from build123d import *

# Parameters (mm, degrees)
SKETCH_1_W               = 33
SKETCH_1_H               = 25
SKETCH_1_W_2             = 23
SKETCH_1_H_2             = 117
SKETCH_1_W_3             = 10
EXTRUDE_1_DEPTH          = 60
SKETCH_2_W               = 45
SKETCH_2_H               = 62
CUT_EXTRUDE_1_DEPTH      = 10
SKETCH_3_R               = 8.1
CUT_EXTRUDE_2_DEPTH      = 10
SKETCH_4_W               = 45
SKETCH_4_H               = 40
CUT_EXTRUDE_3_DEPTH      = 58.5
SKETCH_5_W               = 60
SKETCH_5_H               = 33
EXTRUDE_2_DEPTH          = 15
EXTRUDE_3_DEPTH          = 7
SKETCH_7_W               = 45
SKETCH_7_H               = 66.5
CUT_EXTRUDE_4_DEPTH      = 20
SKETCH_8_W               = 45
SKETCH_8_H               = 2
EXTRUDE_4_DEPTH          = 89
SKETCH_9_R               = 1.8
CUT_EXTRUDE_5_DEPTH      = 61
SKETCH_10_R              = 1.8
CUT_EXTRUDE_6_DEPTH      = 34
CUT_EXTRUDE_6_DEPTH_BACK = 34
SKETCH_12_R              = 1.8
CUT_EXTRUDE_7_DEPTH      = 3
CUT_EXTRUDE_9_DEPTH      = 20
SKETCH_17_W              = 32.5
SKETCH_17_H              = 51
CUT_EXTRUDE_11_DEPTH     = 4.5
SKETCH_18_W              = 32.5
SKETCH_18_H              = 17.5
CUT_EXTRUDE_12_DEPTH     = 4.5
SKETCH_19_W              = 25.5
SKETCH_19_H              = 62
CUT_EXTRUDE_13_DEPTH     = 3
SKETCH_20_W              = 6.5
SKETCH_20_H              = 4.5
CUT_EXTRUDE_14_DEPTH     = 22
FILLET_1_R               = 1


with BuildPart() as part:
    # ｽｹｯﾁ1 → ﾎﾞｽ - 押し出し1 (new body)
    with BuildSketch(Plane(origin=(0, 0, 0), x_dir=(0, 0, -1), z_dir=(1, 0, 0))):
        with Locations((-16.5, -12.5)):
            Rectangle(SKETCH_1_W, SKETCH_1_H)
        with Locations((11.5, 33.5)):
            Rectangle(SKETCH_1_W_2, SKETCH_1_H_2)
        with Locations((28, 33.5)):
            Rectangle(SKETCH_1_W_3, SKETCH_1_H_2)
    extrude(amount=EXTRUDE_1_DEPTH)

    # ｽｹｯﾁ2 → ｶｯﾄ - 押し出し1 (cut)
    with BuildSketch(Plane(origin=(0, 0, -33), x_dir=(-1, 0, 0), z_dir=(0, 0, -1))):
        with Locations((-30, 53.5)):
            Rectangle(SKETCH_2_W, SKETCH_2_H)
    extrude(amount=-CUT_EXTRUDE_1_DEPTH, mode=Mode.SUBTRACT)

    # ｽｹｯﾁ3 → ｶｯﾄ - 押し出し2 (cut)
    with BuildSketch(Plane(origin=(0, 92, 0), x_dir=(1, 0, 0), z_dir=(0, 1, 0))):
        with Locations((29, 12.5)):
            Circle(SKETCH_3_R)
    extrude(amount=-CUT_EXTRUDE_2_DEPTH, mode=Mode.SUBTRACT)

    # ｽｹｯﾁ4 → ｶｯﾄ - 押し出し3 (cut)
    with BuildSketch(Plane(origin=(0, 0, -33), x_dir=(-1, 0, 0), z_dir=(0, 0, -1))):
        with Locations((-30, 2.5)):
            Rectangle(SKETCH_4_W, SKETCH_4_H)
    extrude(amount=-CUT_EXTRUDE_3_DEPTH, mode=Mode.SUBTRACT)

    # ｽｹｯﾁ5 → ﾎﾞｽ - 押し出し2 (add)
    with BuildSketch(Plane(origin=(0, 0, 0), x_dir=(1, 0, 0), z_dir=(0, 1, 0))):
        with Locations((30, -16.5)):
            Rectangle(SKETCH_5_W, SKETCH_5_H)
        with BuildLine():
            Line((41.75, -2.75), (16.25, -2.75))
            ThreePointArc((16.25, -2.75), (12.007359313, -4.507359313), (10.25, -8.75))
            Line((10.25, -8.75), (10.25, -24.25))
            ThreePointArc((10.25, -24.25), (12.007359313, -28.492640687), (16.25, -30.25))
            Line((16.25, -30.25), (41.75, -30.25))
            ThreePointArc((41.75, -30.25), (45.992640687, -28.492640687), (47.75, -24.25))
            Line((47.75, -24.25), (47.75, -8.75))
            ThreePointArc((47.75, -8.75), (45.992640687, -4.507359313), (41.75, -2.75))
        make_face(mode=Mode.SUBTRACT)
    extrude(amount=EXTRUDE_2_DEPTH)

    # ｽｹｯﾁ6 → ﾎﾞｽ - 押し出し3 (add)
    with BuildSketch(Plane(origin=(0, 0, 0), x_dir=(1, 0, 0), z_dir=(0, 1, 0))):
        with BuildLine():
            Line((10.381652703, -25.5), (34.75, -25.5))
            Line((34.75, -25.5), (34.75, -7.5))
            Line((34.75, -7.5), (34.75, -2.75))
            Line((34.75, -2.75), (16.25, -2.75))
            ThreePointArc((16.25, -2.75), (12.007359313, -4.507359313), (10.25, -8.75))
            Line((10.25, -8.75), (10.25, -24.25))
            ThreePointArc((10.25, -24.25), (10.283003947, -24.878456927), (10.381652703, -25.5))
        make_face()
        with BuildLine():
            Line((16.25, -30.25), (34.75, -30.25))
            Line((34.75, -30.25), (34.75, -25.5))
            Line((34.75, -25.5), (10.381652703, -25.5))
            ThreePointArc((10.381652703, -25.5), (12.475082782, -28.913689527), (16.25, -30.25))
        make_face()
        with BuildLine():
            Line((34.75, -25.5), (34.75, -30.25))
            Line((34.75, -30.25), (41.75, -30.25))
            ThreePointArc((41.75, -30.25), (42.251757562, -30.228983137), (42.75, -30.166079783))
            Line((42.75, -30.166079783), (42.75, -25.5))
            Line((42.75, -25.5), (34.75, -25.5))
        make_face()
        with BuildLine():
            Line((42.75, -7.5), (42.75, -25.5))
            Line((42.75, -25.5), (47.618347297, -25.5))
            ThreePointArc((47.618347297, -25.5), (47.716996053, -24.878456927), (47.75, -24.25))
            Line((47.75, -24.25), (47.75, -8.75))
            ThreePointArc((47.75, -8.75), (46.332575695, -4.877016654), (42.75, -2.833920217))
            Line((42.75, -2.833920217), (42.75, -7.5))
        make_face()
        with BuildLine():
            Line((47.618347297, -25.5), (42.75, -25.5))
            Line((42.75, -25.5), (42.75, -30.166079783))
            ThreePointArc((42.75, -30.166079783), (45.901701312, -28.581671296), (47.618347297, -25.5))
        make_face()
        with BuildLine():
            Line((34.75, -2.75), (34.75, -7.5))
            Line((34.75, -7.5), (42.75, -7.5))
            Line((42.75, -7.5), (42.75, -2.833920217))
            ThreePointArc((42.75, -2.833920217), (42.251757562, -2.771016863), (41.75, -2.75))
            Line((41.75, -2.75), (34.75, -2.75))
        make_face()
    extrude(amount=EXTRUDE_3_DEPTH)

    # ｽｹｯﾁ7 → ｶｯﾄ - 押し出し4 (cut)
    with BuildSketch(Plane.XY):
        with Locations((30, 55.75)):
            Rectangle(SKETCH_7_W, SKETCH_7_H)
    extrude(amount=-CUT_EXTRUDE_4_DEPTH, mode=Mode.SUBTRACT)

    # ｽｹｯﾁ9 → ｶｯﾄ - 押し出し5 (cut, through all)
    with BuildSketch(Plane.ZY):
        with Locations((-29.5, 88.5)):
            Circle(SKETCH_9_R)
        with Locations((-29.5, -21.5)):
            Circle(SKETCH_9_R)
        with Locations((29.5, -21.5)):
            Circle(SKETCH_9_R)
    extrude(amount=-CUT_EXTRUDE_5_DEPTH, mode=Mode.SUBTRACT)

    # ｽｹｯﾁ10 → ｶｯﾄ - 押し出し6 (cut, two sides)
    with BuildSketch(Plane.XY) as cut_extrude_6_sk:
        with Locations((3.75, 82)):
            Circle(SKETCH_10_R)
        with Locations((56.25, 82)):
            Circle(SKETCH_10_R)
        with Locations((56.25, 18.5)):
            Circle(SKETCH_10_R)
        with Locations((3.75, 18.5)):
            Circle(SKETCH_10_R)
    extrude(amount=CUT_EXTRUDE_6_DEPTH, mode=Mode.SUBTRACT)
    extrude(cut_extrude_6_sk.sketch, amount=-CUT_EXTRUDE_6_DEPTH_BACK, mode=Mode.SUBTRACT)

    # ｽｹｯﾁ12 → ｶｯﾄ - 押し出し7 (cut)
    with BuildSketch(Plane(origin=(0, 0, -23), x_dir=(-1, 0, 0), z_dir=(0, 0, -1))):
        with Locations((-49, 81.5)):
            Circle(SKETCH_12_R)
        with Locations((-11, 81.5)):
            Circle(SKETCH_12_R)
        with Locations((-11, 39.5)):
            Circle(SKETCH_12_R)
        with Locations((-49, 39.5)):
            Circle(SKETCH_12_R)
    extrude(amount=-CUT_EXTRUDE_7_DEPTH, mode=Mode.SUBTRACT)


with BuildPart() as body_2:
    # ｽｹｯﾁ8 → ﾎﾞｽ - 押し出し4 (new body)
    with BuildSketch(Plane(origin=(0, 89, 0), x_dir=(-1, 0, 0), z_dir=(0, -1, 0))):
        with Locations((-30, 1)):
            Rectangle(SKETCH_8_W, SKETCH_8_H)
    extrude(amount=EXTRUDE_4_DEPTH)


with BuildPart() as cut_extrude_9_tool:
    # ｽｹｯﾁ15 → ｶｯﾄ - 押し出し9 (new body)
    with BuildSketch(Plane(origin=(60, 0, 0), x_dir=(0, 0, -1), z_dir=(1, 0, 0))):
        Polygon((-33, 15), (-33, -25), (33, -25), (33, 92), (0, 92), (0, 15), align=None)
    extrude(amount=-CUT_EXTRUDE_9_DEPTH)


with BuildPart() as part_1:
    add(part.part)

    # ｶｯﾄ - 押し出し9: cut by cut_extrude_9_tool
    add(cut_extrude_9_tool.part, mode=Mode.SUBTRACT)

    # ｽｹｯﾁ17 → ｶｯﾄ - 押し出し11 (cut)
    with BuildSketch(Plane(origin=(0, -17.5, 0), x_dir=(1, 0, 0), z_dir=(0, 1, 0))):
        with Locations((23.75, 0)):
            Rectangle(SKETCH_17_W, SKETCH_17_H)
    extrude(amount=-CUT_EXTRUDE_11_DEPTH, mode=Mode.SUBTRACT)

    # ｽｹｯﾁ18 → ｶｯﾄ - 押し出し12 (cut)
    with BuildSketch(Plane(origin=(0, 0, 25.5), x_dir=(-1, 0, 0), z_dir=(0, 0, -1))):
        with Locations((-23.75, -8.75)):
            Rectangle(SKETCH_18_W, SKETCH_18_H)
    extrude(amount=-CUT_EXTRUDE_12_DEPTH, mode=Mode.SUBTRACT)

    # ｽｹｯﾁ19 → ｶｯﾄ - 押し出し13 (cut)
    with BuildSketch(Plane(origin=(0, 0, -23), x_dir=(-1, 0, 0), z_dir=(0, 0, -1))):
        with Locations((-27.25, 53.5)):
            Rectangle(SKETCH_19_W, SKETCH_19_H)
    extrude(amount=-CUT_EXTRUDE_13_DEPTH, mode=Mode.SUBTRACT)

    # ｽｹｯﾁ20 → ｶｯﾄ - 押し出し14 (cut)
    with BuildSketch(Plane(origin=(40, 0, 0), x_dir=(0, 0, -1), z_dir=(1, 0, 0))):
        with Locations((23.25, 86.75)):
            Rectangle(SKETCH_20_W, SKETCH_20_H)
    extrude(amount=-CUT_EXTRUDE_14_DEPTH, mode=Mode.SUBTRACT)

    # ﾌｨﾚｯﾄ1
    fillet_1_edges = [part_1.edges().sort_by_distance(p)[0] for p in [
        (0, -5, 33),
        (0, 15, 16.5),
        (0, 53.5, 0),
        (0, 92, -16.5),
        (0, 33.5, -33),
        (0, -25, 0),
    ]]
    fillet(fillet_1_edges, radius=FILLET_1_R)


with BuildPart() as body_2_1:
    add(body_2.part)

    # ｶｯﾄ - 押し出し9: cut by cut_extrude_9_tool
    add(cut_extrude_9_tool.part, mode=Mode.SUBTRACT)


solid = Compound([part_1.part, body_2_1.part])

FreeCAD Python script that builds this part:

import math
import FreeCAD as App
import Part
import Sketcher


def edges_at(feature, points):
    """Names of the edges that pass closest to the given points."""
    edges = feature.Shape.Edges
    near = lambda p: min(range(len(edges)), key=lambda i: edges[i].distToShape(Part.Vertex(*p))[0])
    return sorted({f"Edge{near(p) + 1}" for p in points})


def add_polygon(sketch, points):
    """Adds a closed chain of lines whose ends are joined by coincident constraints."""
    first, n = sketch.GeometryCount, len(points)
    for a, b in zip(points, points[1:] + points[:1]):
        sketch.addGeometry(Part.LineSegment(App.Vector(*a, 0), App.Vector(*b, 0)), False)
    for i in range(n):
        sketch.addConstraint(Sketcher.Constraint("Coincident", first + i, 2, first + (i + 1) % n, 1))

doc = App.newDocument("Part")
body = doc.addObject("PartDesign::Body", "Body")

# Sketch on YZ plane
sketch1 = body.newObject("Sketcher::SketchObject", "Sketch")
sketch1.AttachmentSupport = (doc.getObject("YZ_Plane"), [""])
sketch1.MapMode = "FlatFace"
add_polygon(sketch1, [(0, 33), (-25, 33), (-25, -33), (92, -33), (92, 0), (0, 0)])  # lines 0-5
sketch1.addConstraint([
    Sketcher.Constraint("Horizontal", 0),
    Sketcher.Constraint("Vertical", 1),
    Sketcher.Constraint("Horizontal", 2),
    Sketcher.Constraint("Vertical", 3),
    Sketcher.Constraint("Horizontal", 4),
    Sketcher.Constraint("Vertical", 5),
    Sketcher.Constraint("Coincident", 4, 2, -1, 1),
    Sketcher.Constraint("Equal", 3, 5),
    Sketcher.Constraint("DistanceX", 0, 2, 0, 1, 25.0),
    Sketcher.Constraint("DistanceX", 2, 1, 2, 2, 117.0),
    Sketcher.Constraint("DistanceY", 1, 2, 1, 1, 66.0),
])
pad1 = body.newObject("PartDesign::Pad", "Pad")
pad1.Profile = sketch1
pad1.Length = 60

# Sketch on XY plane
sketch2 = body.newObject("Sketcher::SketchObject", "Sketch001")
sketch2.AttachmentSupport = (doc.getObject("XY_Plane"), [""])
sketch2.MapMode = "FlatFace"
sketch2.AttachmentOffset = App.Placement(App.Vector(0, 0, -33), App.Rotation())
add_polygon(sketch2, [(52.5, 84.5), (52.5, 22.5), (7.5, 22.5), (7.5, 84.5)])  # lines 0-3
sketch2.addConstraint([
    Sketcher.Constraint("Vertical", 0),
    Sketcher.Constraint("Horizontal", 1),
    Sketcher.Constraint("Vertical", 2),
    Sketcher.Constraint("Horizontal", 3),
    Sketcher.Constraint("DistanceX", 1, 2, 1, 1, 45.0),
    Sketcher.Constraint("DistanceY", 0, 2, 0, 1, 62.0),
    Sketcher.Constraint("DistanceX", -1, 1, 0, 2, 52.5),
    Sketcher.Constraint("DistanceY", -1, 1, 0, 2, 22.5),
])
pocket1 = body.newObject("PartDesign::Pocket", "Pocket")
pocket1.Profile = sketch2
pocket1.Length = 10
pocket1.Reversed = True

# Sketch on XZ plane
sketch3 = body.newObject("Sketcher::SketchObject", "Sketch002")
sketch3.AttachmentSupport = (doc.getObject("XZ_Plane"), [""])
sketch3.MapMode = "FlatFace"
sketch3.AttachmentOffset = App.Placement(App.Vector(0, 0, -92), App.Rotation())
sketch3.addGeometry(Part.Circle(App.Vector(29, -12.5, 0), App.Vector(0, 0, 1), 8.1), False)
sketch3.addConstraint([
    Sketcher.Constraint("Diameter", 0, 16.2),
    Sketcher.Constraint("DistanceX", -1, 1, 0, 3, 29.0),
    Sketcher.Constraint("DistanceY", 0, 3, -1, 1, 12.5),
])
pocket2 = body.newObject("PartDesign::Pocket", "Pocket001")
pocket2.Profile = sketch3
pocket2.Length = 10
pocket2.Reversed = True

# Sketch on XY plane
sketch4 = body.newObject("Sketcher::SketchObject", "Sketch003")
sketch4.AttachmentSupport = (doc.getObject("XY_Plane"), [""])
sketch4.MapMode = "FlatFace"
sketch4.AttachmentOffset = App.Placement(App.Vector(0, 0, -33), App.Rotation())
add_polygon(sketch4, [(52.5, 22.5), (52.5, -17.5), (7.5, -17.5), (7.5, 22.5)])  # lines 0-3
sketch4.addConstraint([
    Sketcher.Constraint("Vertical", 0),
    Sketcher.Constraint("Horizontal", 1),
    Sketcher.Constraint("Vertical", 2),
    Sketcher.Constraint("Horizontal", 3),
    Sketcher.Constraint("DistanceX", 1, 2, 1, 1, 45.0),
    Sketcher.Constraint("DistanceY", 0, 2, 0, 1, 40.0),
    Sketcher.Constraint("DistanceX", -1, 1, 0, 2, 52.5),
    Sketcher.Constraint("DistanceY", 0, 2, -1, 1, 17.5),
])
pocket3 = body.newObject("PartDesign::Pocket", "Pocket002")
pocket3.Profile = sketch4
pocket3.Length = 58.5
pocket3.Reversed = True

# Sketch on XZ plane
sketch5 = body.newObject("Sketcher::SketchObject", "Sketch004")
sketch5.AttachmentSupport = (doc.getObject("XZ_Plane"), [""])
sketch5.MapMode = "FlatFace"
add_polygon(sketch5, [(0, 0), (0, 33), (60, 33), (60, 0)])  # lines 0-3
sketch5.addGeometry(Part.LineSegment(App.Vector(16.25, 2.75, 0), App.Vector(41.75, 2.75, 0)), False)  # 4
sketch5.addGeometry(Part.ArcOfCircle(Part.Circle(App.Vector(41.75, 8.75, 0), App.Vector(0, 0, 1), 6), math.radians(-90), math.radians(0)), False)  # 5
sketch5.addGeometry(Part.LineSegment(App.Vector(47.75, 8.75, 0), App.Vector(47.75, 24.25, 0)), False)  # 6
sketch5.addGeometry(Part.ArcOfCircle(Part.Circle(App.Vector(41.75, 24.25, 0), App.Vector(0, 0, 1), 6), math.radians(0), math.radians(90)), False)  # 7
sketch5.addGeometry(Part.LineSegment(App.Vector(41.75, 30.25, 0), App.Vector(16.25, 30.25, 0)), False)  # 8
sketch5.addGeometry(Part.ArcOfCircle(Part.Circle(App.Vector(16.25, 24.25, 0), App.Vector(0, 0, 1), 6), math.radians(90), math.radians(180)), False)  # 9
sketch5.addGeometry(Part.LineSegment(App.Vector(10.25, 24.25, 0), App.Vector(10.25, 8.75, 0)), False)  # 10
sketch5.addGeometry(Part.ArcOfCircle(Part.Circle(App.Vector(16.25, 8.75, 0), App.Vector(0, 0, 1), 6), math.radians(180), math.radians(270)), False)  # 11
sketch5.addConstraint([
    Sketcher.Constraint("Tangent", 4, 2, 5, 1),
    Sketcher.Constraint("Tangent", 5, 2, 6, 1),
    Sketcher.Constraint("Tangent", 6, 2, 7, 1),
    Sketcher.Constraint("Tangent", 7, 2, 8, 1),
    Sketcher.Constraint("Tangent", 8, 2, 9, 1),
    Sketcher.Constraint("Tangent", 9, 2, 10, 1),
    Sketcher.Constraint("Tangent", 10, 2, 11, 1),
    Sketcher.Constraint("Tangent", 11, 2, 4, 1),
    Sketcher.Constraint("Vertical", 0),
    Sketcher.Constraint("Horizontal", 1),
    Sketcher.Constraint("Vertical", 2),
    Sketcher.Constraint("Horizontal", 3),
    Sketcher.Constraint("Horizontal", 4),
    Sketcher.Constraint("Vertical", 6),
    Sketcher.Constraint("Horizontal", 8),
    Sketcher.Constraint("Vertical", 10),
    Sketcher.Constraint("Coincident", 3, 2, -1, 1),
    Sketcher.Constraint("Equal", 5, 7),
    Sketcher.Constraint("Equal", 7, 9),
    Sketcher.Constraint("Equal", 9, 11),
    Sketcher.Constraint("Radius", 5, 6.0),
    Sketcher.Constraint("DistanceX", 1, 1, 1, 2, 60.0),
    Sketcher.Constraint("DistanceY", 0, 1, 0, 2, 33.0),
    Sketcher.Constraint("DistanceX", 4, 1, 4, 2, 25.5),
    Sketcher.Constraint("DistanceY", 6, 1, 6, 2, 15.5),
    Sketcher.Constraint("DistanceX", -1, 1, 5, 3, 41.75),
    Sketcher.Constraint("DistanceY", -1, 1, 5, 3, 8.75),
])
pad2 = body.newObject("PartDesign::Pad", "Pad001")
pad2.Profile = sketch5
pad2.Length = 15
pad2.Reversed = True

# Sketch on XZ plane
sketch6 = body.newObject("Sketcher::SketchObject", "Sketch005")
sketch6.AttachmentSupport = (doc.getObject("XZ_Plane"), [""])
sketch6.MapMode = "FlatFace"
sketch6.addGeometry(Part.ArcOfCircle(Part.Circle(App.Vector(16.25, 8.75, 0), App.Vector(0, 0, 1), 6), math.radians(180), math.radians(270)), False)  # 0
sketch6.addGeometry(Part.LineSegment(App.Vector(10.25, 8.75, 0), App.Vector(10.25, 24.25, 0)), False)  # 1
sketch6.addGeometry(Part.ArcOfCircle(Part.Circle(App.Vector(16.25, 24.25, 0), App.Vector(0, 0, 1), 6), math.radians(167.975301), math.radians(180)), False)  # 2
sketch6.addGeometry(Part.ArcOfCircle(Part.Circle(App.Vector(16.25, 24.25, 0), App.Vector(0, 0, 1), 6), math.radians(90), math.radians(167.975301)), False)  # 3
sketch6.addGeometry(Part.LineSegment(App.Vector(16.25, 30.25, 0), App.Vector(41.75, 30.25, 0)), False)  # 4
sketch6.addGeometry(Part.ArcOfCircle(Part.Circle(App.Vector(41.75, 24.25, 0), App.Vector(0, 0, 1), 6), math.radians(80.405932), math.radians(90)), False)  # 5
sketch6.addGeometry(Part.ArcOfCircle(Part.Circle(App.Vector(41.75, 24.25, 0), App.Vector(0, 0, 1), 6), math.radians(12.024699), math.radians(80.405932)), False)  # 6
sketch6.addGeometry(Part.ArcOfCircle(Part.Circle(App.Vector(41.75, 24.25, 0), App.Vector(0, 0, 1), 6), math.radians(0), math.radians(12.024699)), False)  # 7
sketch6.addGeometry(Part.LineSegment(App.Vector(47.75, 24.25, 0), App.Vector(47.75, 8.75, 0)), False)  # 8
sketch6.addGeometry(Part.ArcOfCircle(Part.Circle(App.Vector(41.75, 8.75, 0), App.Vector(0, 0, 1), 6), math.radians(-80.405932), math.radians(0)), False)  # 9
sketch6.addGeometry(Part.ArcOfCircle(Part.Circle(App.Vector(41.75, 8.75, 0), App.Vector(0, 0, 1), 6), math.radians(-90), math.radians(-80.405932)), False)  # 10
sketch6.addGeometry(Part.LineSegment(App.Vector(41.75, 2.75, 0), App.Vector(16.25, 2.75, 0)), False)  # 11
add_polygon(sketch6, [(42.75, 7.5), (42.75, 25.5), (34.75, 25.5), (34.75, 7.5)])  # lines 12-15
sketch6.addConstraint([
    Sketcher.Constraint("Tangent", 0, 1, 1, 1),
    Sketcher.Constraint("Tangent", 1, 2, 2, 2),
    Sketcher.Constraint("Tangent", 2, 1, 3, 2),
    Sketcher.Constraint("Tangent", 3, 1, 4, 1),
    Sketcher.Constraint("Tangent", 4, 2, 5, 2),
    Sketcher.Constraint("Tangent", 5, 1, 6, 2),
    Sketcher.Constraint("Tangent", 6, 1, 7, 2),
    Sketcher.Constraint("Tangent", 7, 1, 8, 1),
    Sketcher.Constraint("Tangent", 8, 2, 9, 2),
    Sketcher.Constraint("Tangent", 9, 1, 10, 2),
    Sketcher.Constraint("Tangent", 10, 1, 11, 1),
    Sketcher.Constraint("Tangent", 11, 2, 0, 2),
    Sketcher.Constraint("Vertical", 1),
    Sketcher.Constraint("Horizontal", 4),
    Sketcher.Constraint("Vertical", 8),
    Sketcher.Constraint("Horizontal", 11),
    Sketcher.Constraint("Vertical", 12),
    Sketcher.Constraint("Horizontal", 13),
    Sketcher.Constraint("Vertical", 14),
    Sketcher.Constraint("Horizontal", 15),
    Sketcher.Constraint("Coincident", 7, 3, 5, 3),
    Sketcher.Constraint("Equal", 0, 2),
    Sketcher.Constraint("Equal", 2, 3),
    Sketcher.Constraint("Equal", 3, 5),
    Sketcher.Constraint("Equal", 7, 9),
    Sketcher.Constraint("Equal", 9, 10),
    Sketcher.Constraint("Horizontal", 2, 1, 6, 1),
    Sketcher.Constraint("Horizontal", 6, 1, 12, 2),
    Sketcher.Constraint("Vertical", 5, 1, 9, 1),
    Sketcher.Constraint("Vertical", 9, 1, 12, 2),
    Sketcher.Constraint("Radius", 0, 6.0),
    Sketcher.Constraint("DistanceX", 13, 2, 13, 1, 8.0),
    Sketcher.Constraint("DistanceY", 12, 1, 12, 2, 18.0),
    Sketcher.Constraint("DistanceX", 4, 1, 4, 2, 25.5),
    Sketcher.Constraint("DistanceY", 1, 1, 1, 2, 15.5),
    Sketcher.Constraint("DistanceX", 4, 2, 5, 1, 1.0),
    Sketcher.Constraint("DistanceY", -1, 1, 2, 1, 25.5),
    Sketcher.Constraint("DistanceX", -1, 1, 0, 3, 16.25),
    Sketcher.Constraint("DistanceY", -1, 1, 0, 3, 8.75),
])
pad3 = body.newObject("PartDesign::Pad", "Pad002")
pad3.Profile = sketch6
pad3.Length = 7
pad3.Reversed = True

# Sketch on XY plane
sketch7 = body.newObject("Sketcher::SketchObject", "Sketch006")
sketch7.AttachmentSupport = (doc.getObject("XY_Plane"), [""])
sketch7.MapMode = "FlatFace"
add_polygon(sketch7, [(7.5, 89), (7.5, 22.5), (52.5, 22.5), (52.5, 89)])  # lines 0-3
sketch7.addConstraint([
    Sketcher.Constraint("Vertical", 0),
    Sketcher.Constraint("Horizontal", 1),
    Sketcher.Constraint("Vertical", 2),
    Sketcher.Constraint("Horizontal", 3),
    Sketcher.Constraint("DistanceX", 1, 1, 1, 2, 45.0),
    Sketcher.Constraint("DistanceY", 0, 2, 0, 1, 66.5),
    Sketcher.Constraint("DistanceY", -1, 1, 2, 2, 89.0),
    Sketcher.Constraint("DistanceX", -1, 1, 0, 2, 7.5),
])
pocket4 = body.newObject("PartDesign::Pocket", "Pocket003")
pocket4.Profile = sketch7
pocket4.Length = 20

# Sketch on YZ plane
sketch8 = body.newObject("Sketcher::SketchObject", "Sketch007")
sketch8.AttachmentSupport = (doc.getObject("YZ_Plane"), [""])
sketch8.MapMode = "FlatFace"
sketch8.addGeometry([
    Part.Circle(App.Vector(88.5, -29.5, 0), App.Vector(0, 0, 1), 1.8),
    Part.Circle(App.Vector(-21.5, -29.5, 0), App.Vector(0, 0, 1), 1.8),
    Part.Circle(App.Vector(-21.5, 29.5, 0), App.Vector(0, 0, 1), 1.8),
], False)
sketch8.addConstraint([
    Sketcher.Constraint("Equal", 0, 1),
    Sketcher.Constraint("Equal", 1, 2),
    Sketcher.Constraint("Symmetric", 1, 3, 2, 3, -1),
    Sketcher.Constraint("Horizontal", 0, 3, 1, 3),
    Sketcher.Constraint("Diameter", 0, 3.6),
    Sketcher.Constraint("DistanceX", 1, 3, 0, 3, 110.0),
    Sketcher.Constraint("DistanceY", 1, 3, 2, 3, 59.0),
    Sketcher.Constraint("DistanceX", -1, 1, 0, 3, 88.5),
])
pocket5 = body.newObject("PartDesign::Pocket", "Pocket004")
pocket5.Profile = sketch8
pocket5.Type = "ThroughAll"
pocket5.Reversed = True

# Sketch on XY plane
sketch9 = body.newObject("Sketcher::SketchObject", "Sketch008")
sketch9.AttachmentSupport = (doc.getObject("XY_Plane"), [""])
sketch9.MapMode = "FlatFace"
sketch9.addGeometry([
    Part.Circle(App.Vector(3.75, 82, 0), App.Vector(0, 0, 1), 1.8),
    Part.Circle(App.Vector(56.25, 82, 0), App.Vector(0, 0, 1), 1.8),
    Part.Circle(App.Vector(56.25, 18.5, 0), App.Vector(0, 0, 1), 1.8),
    Part.Circle(App.Vector(3.75, 18.5, 0), App.Vector(0, 0, 1), 1.8),
], False)
sketch9.addConstraint([
    Sketcher.Constraint("Equal", 0, 1),
    Sketcher.Constraint("Equal", 1, 2),
    Sketcher.Constraint("Equal", 2, 3),
    Sketcher.Constraint("Horizontal", 0, 3, 1, 3),
    Sketcher.Constraint("Horizontal", 2, 3, 3, 3),
    Sketcher.Constraint("Vertical", 1, 3, 2, 3),
    Sketcher.Constraint("Vertical", 0, 3, 3, 3),
    Sketcher.Constraint("Diameter", 0, 3.6),
    Sketcher.Constraint("DistanceY", -1, 1, 0, 3, 82.0),
    Sketcher.Constraint("DistanceY", -1, 1, 2, 3, 18.5),
    Sketcher.Constraint("DistanceX", 0, 3, 1, 3, 52.5),
    Sketcher.Constraint("DistanceX", -1, 1, 0, 3, 3.75),
])
pocket6 = body.newObject("PartDesign::Pocket", "Pocket005")
pocket6.Profile = sketch9
pocket6.Type = "ThroughAll"
pocket6.Midplane = True

# Sketch on XY plane
sketch10 = body.newObject("Sketcher::SketchObject", "Sketch009")
sketch10.AttachmentSupport = (doc.getObject("XY_Plane"), [""])
sketch10.MapMode = "FlatFace"
sketch10.AttachmentOffset = App.Placement(App.Vector(0, 0, -23), App.Rotation())
sketch10.addGeometry([
    Part.Circle(App.Vector(49, 81.5, 0), App.Vector(0, 0, 1), 1.8),
    Part.Circle(App.Vector(11, 81.5, 0), App.Vector(0, 0, 1), 1.8),
    Part.Circle(App.Vector(11, 39.5, 0), App.Vector(0, 0, 1), 1.8),
    Part.Circle(App.Vector(49, 39.5, 0), App.Vector(0, 0, 1), 1.8),
], False)
sketch10.addConstraint([
    Sketcher.Constraint("Equal", 0, 1),
    Sketcher.Constraint("Equal", 1, 2),
    Sketcher.Constraint("Equal", 2, 3),
    Sketcher.Constraint("Horizontal", 0, 3, 1, 3),
    Sketcher.Constraint("Horizontal", 2, 3, 3, 3),
    Sketcher.Constraint("Vertical", 1, 3, 2, 3),
    Sketcher.Constraint("Vertical", 0, 3, 3, 3),
    Sketcher.Constraint("Diameter", 0, 3.6),
    Sketcher.Constraint("DistanceX", -1, 1, 0, 3, 49.0),
    Sketcher.Constraint("DistanceX", -1, 1, 1, 3, 11.0),
    Sketcher.Constraint("DistanceY", 2, 3, 1, 3, 42.0),
    Sketcher.Constraint("DistanceY", -1, 1, 0, 3, 81.5),
])
pocket7 = body.newObject("PartDesign::Pocket", "Pocket006")
pocket7.Profile = sketch10
pocket7.Length = 3
pocket7.Reversed = True
body2 = doc.addObject("PartDesign::Body", "Body001")

# Sketch on XZ plane
sketch11 = body2.newObject("Sketcher::SketchObject", "Sketch010")
sketch11.AttachmentSupport = (doc.getObject("XZ_Plane001"), [""])
sketch11.MapMode = "FlatFace"
sketch11.AttachmentOffset = App.Placement(App.Vector(0, 0, -89), App.Rotation())
add_polygon(sketch11, [(52.5, -2), (52.5, 0), (7.5, 0), (7.5, -2)])  # lines 0-3
sketch11.addConstraint([
    Sketcher.Constraint("Vertical", 0),
    Sketcher.Constraint("Horizontal", 1),
    Sketcher.Constraint("Vertical", 2),
    Sketcher.Constraint("Horizontal", 3),
    Sketcher.Constraint("PointOnObject", 0, 2, -1),
    Sketcher.Constraint("DistanceX", 1, 2, 1, 1, 45.0),
    Sketcher.Constraint("DistanceY", 0, 1, 0, 2, 2.0),
    Sketcher.Constraint("DistanceX", -1, 1, 0, 2, 52.5),
])
pad4 = body2.newObject("PartDesign::Pad", "Pad003")
pad4.Profile = sketch11
pad4.Length = 89
body3 = doc.addObject("PartDesign::Body", "Body002")

# Sketch on YZ plane
sketch12 = body3.newObject("Sketcher::SketchObject", "Sketch011")
sketch12.AttachmentSupport = (doc.getObject("YZ_Plane002"), [""])
sketch12.MapMode = "FlatFace"
sketch12.AttachmentOffset = App.Placement(App.Vector(0, 0, 60), App.Rotation())
add_polygon(sketch12, [(15, 33), (-25, 33), (-25, -33), (92, -33), (92, 0), (15, 0)])  # lines 0-5
sketch12.addConstraint([
    Sketcher.Constraint("Horizontal", 0),
    Sketcher.Constraint("Vertical", 1),
    Sketcher.Constraint("Horizontal", 2),
    Sketcher.Constraint("Vertical", 3),
    Sketcher.Constraint("Horizontal", 4),
    Sketcher.Constraint("Vertical", 5),
    Sketcher.Constraint("PointOnObject", 3, 2, -1),
    Sketcher.Constraint("Equal", 3, 5),
    Sketcher.Constraint("DistanceX", 0, 2, 0, 1, 40.0),
    Sketcher.Constraint("DistanceX", 2, 1, 2, 2, 117.0),
    Sketcher.Constraint("DistanceY", 1, 2, 1, 1, 66.0),
    Sketcher.Constraint("DistanceX", 0, 2, -1, 1, 25.0),
])
pad5 = body3.newObject("PartDesign::Pad", "Pad004")
pad5.Profile = sketch12
pad5.Length = 20
pad5.Reversed = True
doc.recompute()

body4 = doc.addObject("PartDesign::Body", "Body003")
body4.BaseFeature = body3
boolean = body.newObject("PartDesign::Boolean", "Boolean")
boolean.Type = "Cut"
boolean.addObjects([body4])
doc.recompute()

# Sketch on XZ plane
sketch13 = body.newObject("Sketcher::SketchObject", "Sketch012")
sketch13.AttachmentSupport = (doc.getObject("XZ_Plane"), [""])
sketch13.MapMode = "FlatFace"
sketch13.AttachmentOffset = App.Placement(App.Vector(0, 0, 17.5), App.Rotation())
add_polygon(sketch13, [(7.5, -25.5), (7.5, 25.5), (40, 25.5), (40, -25.5)])  # lines 0-3
sketch13.addConstraint([
    Sketcher.Constraint("Vertical", 0),
    Sketcher.Constraint("Horizontal", 1),
    Sketcher.Constraint("Vertical", 2),
    Sketcher.Constraint("Horizontal", 3),
    Sketcher.Constraint("DistanceY", 0, 1, 0, 2, 51.0),
    Sketcher.Constraint("DistanceX", 1, 1, 1, 2, 32.5),
    Sketcher.Constraint("DistanceX", -1, 1, 1, 2, 40.0),
    Sketcher.Constraint("DistanceY", -1, 1, 0, 2, 25.5),
])
pocket8 = body.newObject("PartDesign::Pocket", "Pocket007")
pocket8.Profile = sketch13
pocket8.Length = 4.5
pocket8.Reversed = True

# Sketch on XY plane
sketch14 = body.newObject("Sketcher::SketchObject", "Sketch013")
sketch14.AttachmentSupport = (doc.getObject("XY_Plane"), [""])
sketch14.MapMode = "FlatFace"
sketch14.AttachmentOffset = App.Placement(App.Vector(0, 0, 25.5), App.Rotation())
add_polygon(sketch14, [(40, 0), (40, -17.5), (7.5, -17.5), (7.5, 0)])  # lines 0-3
sketch14.addConstraint([
    Sketcher.Constraint("Vertical", 0),
    Sketcher.Constraint("Horizontal", 1),
    Sketcher.Constraint("Vertical", 2),
    Sketcher.Constraint("Horizontal", 3),
    Sketcher.Constraint("PointOnObject", 2, 2, -1),
    Sketcher.Constraint("DistanceX", 1, 2, 1, 1, 32.5),
    Sketcher.Constraint("DistanceY", 0, 2, 0, 1, 17.5),
    Sketcher.Constraint("DistanceX", -1, 1, 0, 2, 40.0),
])
pocket9 = body.newObject("PartDesign::Pocket", "Pocket008")
pocket9.Profile = sketch14
pocket9.Length = 4.5
pocket9.Reversed = True

# Sketch on XY plane
sketch15 = body.newObject("Sketcher::SketchObject", "Sketch014")
sketch15.AttachmentSupport = (doc.getObject("XY_Plane"), [""])
sketch15.MapMode = "FlatFace"
sketch15.AttachmentOffset = App.Placement(App.Vector(0, 0, -23), App.Rotation())
add_polygon(sketch15, [(40, 84.5), (40, 22.5), (14.5, 22.5), (14.5, 84.5)])  # lines 0-3
sketch15.addConstraint([
    Sketcher.Constraint("Vertical", 0),
    Sketcher.Constraint("Horizontal", 1),
    Sketcher.Constraint("Vertical", 2),
    Sketcher.Constraint("Horizontal", 3),
    Sketcher.Constraint("DistanceY", 0, 2, 0, 1, 62.0),
    Sketcher.Constraint("DistanceX", 1, 2, 1, 1, 25.5),
    Sketcher.Constraint("DistanceX", -1, 1, 0, 2, 40.0),
    Sketcher.Constraint("DistanceY", -1, 1, 0, 2, 22.5),
])
pocket10 = body.newObject("PartDesign::Pocket", "Pocket009")
pocket10.Profile = sketch15
pocket10.Length = 3
pocket10.Reversed = True

# Sketch on YZ plane
sketch16 = body.newObject("Sketcher::SketchObject", "Sketch015")
sketch16.AttachmentSupport = (doc.getObject("YZ_Plane"), [""])
sketch16.MapMode = "FlatFace"
sketch16.AttachmentOffset = App.Placement(App.Vector(0, 0, 40), App.Rotation())
add_polygon(sketch16, [(89, -20), (84.5, -20), (84.5, -26.5), (89, -26.5)])  # lines 0-3
sketch16.addConstraint([
    Sketcher.Constraint("Horizontal", 0),
    Sketcher.Constraint("Vertical", 1),
    Sketcher.Constraint("Horizontal", 2),
    Sketcher.Constraint("Vertical", 3),
    Sketcher.Constraint("DistanceX", 0, 2, 0, 1, 4.5),
    Sketcher.Constraint("DistanceY", 1, 2, 1, 1, 6.5),
    Sketcher.Constraint("DistanceY", 0, 2, -1, 1, 20.0),
    Sketcher.Constraint("DistanceX", -1, 1, 2, 2, 89.0),
])
pocket11 = body.newObject("PartDesign::Pocket", "Pocket010")
pocket11.Profile = sketch16
pocket11.Length = 22
doc.recompute()

fillet = body.newObject("PartDesign::Fillet", "Fillet")
fillet.Base = (pocket11, edges_at(pocket11, [
    (0, -5, 33),
    (0, 15, 16.5),
    (0, 53.5, 0),
    (0, 92, -16.5),
    (0, 33.5, -33),
    (0, -25, 0),
]))
fillet.Radius = 1
doc.recompute()

boolean2 = body2.newObject("PartDesign::Boolean", "Boolean001")
boolean2.Type = "Cut"
boolean2.addObjects([body3])

doc.recompute()
